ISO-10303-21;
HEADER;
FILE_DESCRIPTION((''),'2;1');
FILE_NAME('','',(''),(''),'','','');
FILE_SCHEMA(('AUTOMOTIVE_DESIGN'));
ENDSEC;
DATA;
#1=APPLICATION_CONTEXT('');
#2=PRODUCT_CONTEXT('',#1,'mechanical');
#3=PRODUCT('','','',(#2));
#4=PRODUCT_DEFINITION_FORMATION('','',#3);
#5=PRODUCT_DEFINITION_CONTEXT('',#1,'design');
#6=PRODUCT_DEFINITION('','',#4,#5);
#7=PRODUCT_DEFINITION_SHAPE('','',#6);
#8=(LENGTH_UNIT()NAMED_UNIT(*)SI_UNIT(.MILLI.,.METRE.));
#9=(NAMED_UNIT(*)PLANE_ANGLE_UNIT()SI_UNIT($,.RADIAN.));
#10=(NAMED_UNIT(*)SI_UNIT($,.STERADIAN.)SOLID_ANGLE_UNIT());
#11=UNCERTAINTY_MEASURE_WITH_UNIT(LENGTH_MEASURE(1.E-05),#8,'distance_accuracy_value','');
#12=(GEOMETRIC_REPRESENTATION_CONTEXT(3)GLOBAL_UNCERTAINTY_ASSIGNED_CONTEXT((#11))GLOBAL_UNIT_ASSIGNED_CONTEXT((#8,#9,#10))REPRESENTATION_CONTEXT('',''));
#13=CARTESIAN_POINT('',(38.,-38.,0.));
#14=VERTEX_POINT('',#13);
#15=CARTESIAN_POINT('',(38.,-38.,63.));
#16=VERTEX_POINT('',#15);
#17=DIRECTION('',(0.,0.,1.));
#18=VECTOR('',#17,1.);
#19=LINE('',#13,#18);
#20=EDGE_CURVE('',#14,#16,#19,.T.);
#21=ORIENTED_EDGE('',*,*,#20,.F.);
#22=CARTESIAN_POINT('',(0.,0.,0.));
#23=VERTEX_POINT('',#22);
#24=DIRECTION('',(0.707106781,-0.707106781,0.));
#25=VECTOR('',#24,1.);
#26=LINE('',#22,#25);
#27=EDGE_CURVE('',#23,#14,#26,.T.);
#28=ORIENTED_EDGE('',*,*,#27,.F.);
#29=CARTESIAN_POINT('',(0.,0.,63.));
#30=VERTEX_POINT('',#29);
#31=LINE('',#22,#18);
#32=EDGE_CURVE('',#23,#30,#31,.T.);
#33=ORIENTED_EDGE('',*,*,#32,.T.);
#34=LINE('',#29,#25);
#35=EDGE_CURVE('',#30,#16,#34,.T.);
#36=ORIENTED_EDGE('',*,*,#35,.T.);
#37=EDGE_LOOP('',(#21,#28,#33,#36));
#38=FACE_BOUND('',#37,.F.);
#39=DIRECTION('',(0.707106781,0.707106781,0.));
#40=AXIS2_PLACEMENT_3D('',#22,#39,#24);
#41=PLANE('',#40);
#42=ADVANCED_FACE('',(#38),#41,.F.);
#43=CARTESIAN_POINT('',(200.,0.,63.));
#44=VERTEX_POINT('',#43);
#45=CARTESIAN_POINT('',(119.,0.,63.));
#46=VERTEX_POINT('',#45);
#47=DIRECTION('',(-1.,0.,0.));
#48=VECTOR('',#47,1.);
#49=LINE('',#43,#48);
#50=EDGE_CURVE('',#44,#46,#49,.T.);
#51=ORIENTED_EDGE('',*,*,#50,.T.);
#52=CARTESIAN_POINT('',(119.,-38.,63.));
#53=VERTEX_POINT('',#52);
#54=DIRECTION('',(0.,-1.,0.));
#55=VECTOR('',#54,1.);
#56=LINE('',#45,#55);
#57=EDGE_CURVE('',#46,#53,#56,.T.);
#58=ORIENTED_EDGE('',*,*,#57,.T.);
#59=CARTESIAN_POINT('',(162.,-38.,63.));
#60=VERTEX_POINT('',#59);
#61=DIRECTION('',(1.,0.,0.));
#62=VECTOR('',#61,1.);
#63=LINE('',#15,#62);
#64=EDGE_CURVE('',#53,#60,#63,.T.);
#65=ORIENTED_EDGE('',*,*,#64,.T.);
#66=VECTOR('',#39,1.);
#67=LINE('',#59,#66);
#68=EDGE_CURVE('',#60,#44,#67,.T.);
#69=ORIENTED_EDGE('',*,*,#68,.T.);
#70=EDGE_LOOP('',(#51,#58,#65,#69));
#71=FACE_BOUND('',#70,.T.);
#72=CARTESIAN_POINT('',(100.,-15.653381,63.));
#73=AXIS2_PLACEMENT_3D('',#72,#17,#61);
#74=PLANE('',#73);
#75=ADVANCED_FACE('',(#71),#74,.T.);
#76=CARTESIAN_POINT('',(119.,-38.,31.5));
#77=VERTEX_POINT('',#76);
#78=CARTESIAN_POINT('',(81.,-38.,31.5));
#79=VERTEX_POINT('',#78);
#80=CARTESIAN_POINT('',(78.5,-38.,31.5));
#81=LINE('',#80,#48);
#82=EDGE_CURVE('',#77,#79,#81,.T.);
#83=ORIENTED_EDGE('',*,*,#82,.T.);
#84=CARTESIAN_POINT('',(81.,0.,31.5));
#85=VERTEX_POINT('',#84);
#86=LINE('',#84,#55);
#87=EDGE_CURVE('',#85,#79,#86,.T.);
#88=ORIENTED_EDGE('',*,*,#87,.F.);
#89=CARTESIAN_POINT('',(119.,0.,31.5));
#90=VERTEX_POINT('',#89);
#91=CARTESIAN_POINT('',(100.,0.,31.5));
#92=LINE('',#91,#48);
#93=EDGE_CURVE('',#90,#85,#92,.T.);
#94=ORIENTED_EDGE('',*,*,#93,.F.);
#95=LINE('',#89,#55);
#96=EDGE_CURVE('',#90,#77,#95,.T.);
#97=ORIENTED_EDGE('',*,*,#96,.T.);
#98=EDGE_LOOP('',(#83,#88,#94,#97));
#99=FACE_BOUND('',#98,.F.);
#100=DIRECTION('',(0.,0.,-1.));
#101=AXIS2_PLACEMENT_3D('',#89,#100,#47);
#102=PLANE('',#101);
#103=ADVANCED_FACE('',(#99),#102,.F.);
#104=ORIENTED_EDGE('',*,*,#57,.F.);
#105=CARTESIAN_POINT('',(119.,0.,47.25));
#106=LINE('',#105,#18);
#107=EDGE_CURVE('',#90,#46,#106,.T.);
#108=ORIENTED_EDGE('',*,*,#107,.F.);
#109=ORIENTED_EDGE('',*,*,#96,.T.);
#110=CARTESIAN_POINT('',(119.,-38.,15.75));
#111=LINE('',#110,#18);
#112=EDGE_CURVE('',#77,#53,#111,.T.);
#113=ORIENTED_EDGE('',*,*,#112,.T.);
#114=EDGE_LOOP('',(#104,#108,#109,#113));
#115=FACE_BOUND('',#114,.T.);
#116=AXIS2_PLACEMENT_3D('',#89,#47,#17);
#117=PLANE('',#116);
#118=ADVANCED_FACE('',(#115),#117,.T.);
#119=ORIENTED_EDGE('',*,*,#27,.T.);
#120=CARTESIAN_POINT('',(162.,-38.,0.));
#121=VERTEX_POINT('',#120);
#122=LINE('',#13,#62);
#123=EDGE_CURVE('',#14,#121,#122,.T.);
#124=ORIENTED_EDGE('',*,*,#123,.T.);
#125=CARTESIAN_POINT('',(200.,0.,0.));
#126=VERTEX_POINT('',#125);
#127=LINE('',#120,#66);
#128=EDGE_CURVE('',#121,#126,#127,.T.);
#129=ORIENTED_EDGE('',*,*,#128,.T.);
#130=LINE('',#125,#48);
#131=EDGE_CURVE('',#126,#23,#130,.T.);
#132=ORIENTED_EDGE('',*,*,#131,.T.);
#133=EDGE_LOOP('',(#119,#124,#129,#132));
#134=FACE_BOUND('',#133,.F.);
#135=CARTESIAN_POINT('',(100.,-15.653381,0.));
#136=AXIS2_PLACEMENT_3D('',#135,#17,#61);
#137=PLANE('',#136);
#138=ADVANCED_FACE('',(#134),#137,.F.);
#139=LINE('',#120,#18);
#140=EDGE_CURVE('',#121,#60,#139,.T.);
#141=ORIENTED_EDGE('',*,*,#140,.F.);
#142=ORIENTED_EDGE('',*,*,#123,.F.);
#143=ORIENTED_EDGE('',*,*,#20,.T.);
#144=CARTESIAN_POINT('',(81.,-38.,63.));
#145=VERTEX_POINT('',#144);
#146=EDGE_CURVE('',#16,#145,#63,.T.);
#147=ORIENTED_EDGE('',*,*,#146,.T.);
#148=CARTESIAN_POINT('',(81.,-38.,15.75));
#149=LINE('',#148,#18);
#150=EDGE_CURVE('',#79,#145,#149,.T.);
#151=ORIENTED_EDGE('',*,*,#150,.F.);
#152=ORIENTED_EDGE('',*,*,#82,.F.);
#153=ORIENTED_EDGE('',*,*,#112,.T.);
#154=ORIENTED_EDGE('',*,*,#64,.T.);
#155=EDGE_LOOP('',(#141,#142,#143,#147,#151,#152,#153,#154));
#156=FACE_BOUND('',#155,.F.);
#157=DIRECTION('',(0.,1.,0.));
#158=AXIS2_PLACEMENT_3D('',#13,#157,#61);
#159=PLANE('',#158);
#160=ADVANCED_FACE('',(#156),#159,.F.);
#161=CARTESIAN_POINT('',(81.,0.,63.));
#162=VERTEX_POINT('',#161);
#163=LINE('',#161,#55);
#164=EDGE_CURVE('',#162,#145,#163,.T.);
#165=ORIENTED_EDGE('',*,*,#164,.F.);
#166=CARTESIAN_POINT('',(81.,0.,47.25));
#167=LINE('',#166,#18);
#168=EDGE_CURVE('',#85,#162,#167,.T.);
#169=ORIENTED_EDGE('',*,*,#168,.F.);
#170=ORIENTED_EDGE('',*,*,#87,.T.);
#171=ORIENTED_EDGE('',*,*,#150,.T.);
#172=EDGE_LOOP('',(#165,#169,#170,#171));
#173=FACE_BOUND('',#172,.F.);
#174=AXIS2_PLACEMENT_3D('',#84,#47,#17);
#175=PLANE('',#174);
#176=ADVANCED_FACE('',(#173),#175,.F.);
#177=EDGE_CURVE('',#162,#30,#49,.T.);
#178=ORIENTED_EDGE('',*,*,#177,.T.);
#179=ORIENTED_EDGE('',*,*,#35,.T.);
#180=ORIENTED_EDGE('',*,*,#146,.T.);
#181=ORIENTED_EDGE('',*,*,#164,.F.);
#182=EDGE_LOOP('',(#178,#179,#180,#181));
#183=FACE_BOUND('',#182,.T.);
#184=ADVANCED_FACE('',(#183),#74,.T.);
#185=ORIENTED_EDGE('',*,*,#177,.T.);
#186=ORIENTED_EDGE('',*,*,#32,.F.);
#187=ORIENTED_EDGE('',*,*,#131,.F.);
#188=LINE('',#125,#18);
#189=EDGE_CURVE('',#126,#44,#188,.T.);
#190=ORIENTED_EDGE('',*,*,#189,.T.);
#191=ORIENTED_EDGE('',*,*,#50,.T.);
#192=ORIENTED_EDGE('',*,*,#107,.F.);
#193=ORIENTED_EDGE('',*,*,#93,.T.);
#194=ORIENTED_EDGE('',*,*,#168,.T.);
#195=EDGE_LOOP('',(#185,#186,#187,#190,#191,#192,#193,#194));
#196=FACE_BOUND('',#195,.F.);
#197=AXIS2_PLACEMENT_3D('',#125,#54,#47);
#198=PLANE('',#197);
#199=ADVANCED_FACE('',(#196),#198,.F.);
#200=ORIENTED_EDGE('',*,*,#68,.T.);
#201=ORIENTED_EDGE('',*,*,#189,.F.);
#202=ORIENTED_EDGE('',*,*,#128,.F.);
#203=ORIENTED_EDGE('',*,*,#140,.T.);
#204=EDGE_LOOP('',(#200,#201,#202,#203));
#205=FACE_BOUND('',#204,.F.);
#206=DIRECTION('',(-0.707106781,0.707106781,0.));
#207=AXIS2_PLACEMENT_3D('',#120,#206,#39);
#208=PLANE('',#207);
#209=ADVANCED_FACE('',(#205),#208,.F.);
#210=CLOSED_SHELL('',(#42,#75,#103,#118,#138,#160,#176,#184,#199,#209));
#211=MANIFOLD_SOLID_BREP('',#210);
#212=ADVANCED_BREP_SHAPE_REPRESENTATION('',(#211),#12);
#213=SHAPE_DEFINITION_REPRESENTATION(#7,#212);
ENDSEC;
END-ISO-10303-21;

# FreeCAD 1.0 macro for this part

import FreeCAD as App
import Part
import Sketcher
Q = App.Units.Quantity


def add_polygon(sketch, points):
    """Adds a closed chain of lines whose ends are joined by coincident constraints."""
    first, n = sketch.GeometryCount, len(points)
    for a, b in zip(points, points[1:] + points[:1]):
        sketch.addGeometry(Part.LineSegment(App.Vector(*a, 0), App.Vector(*b, 0)), False)
    for i in range(n):
        sketch.addConstraint(Sketcher.Constraint("Coincident", first + i, 2, first + (i + 1) % n, 1))

doc = App.newDocument("Part")
body = doc.addObject("PartDesign::Body", "Body")

sketch1 = body.newObject("Sketcher::SketchObject", "Sketch")
sketch1.AttachmentSupport = (doc.getObject("XY_Plane"), [""])
sketch1.MapMode = "FlatFace"
add_polygon(sketch1, [(200, 0), (0, 0), (38, -38), (162, -38)])
sketch1.addConstraint([
    Sketcher.Constraint("Horizontal", 0),
    Sketcher.Constraint("Horizontal", 2),
    Sketcher.Constraint("Coincident", 0, 2, -1, 1),
    Sketcher.Constraint("Perpendicular", 1, 3),
    Sketcher.Constraint("Equal", 1, 3),
    Sketcher.Constraint("DistanceX", 0, 2, 0, 1, Q("200 mm")),
    Sketcher.Constraint("DistanceX", 2, 1, 2, 2, Q("124 mm")),
])
pad1 = body.newObject("PartDesign::Pad", "Pad")
pad1.Profile = sketch1
pad1.Length = 63

sketch2 = body.newObject("Sketcher::SketchObject", "Sketch001")
sketch2.AttachmentSupport = (doc.getObject("XZ_Plane"), [""])
sketch2.MapMode = "FlatFace"
add_polygon(sketch2, [(119, 63), (119, 32), (81, 32), (81, 63)])
sketch2.addConstraint([
    Sketcher.Constraint("Vertical", 0),
    Sketcher.Constraint("Horizontal", 1),
    Sketcher.Constraint("Vertical", 2),
    Sketcher.Constraint("Horizontal", 3),
    Sketcher.Constraint("DistanceX", 1, 2, 1, 1, Q("38 mm")),
    Sketcher.Constraint("DistanceY", 0, 2, 0, 1, Q("31.5 mm")),
    Sketcher.Constraint("DistanceX", -1, 1, 0, 2, Q("119 mm")),
    Sketcher.Constraint("DistanceY", -1, 1, 2, 2, Q("63 mm")),
])
pocket1 = body.newObject("PartDesign::Pocket", "Pocket")
pocket1.Profile = sketch2
pocket1.Type = "ThroughAll"
pocket1.Reversed = True

doc.recompute()
